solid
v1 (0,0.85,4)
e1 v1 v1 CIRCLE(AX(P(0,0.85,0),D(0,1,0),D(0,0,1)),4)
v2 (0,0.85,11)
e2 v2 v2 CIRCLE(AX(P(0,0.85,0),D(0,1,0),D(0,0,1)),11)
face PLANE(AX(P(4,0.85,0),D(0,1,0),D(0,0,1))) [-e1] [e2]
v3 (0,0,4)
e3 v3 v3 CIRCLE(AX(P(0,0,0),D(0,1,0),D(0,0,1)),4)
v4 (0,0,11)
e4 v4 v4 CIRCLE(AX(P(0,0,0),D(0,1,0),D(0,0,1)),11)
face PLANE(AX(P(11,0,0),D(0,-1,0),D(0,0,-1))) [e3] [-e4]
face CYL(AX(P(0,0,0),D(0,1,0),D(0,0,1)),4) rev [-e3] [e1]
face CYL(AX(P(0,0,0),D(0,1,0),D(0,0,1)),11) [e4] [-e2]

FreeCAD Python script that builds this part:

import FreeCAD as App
import Part
import Sketcher
from FreeCAD import Vector
Q = App.Units.Quantity

doc = App.newDocument("Part")
body = doc.addObject("PartDesign::Body", "Body")

# Sketch on XY plane
sketch1 = body.newObject("Sketcher::SketchObject", "Sketch")
sketch1.AttachmentSupport = (doc.getObject("XY_Plane"), [""])
sketch1.MapMode = "FlatFace"
sketch1.addGeometry(Part.LineSegment(Vector(11, 0.8, 0), Vector(11, 0, 0)), False)
sketch1.addGeometry(Part.LineSegment(Vector(11, 0, 0), Vector(4, 0, 0)), False)
sketch1.addGeometry(Part.LineSegment(Vector(4, 0, 0), Vector(4, 0.8, 0)), False)
sketch1.addGeometry(Part.LineSegment(Vector(4, 0.8, 0), Vector(11, 0.8, 0)), False)
sketch1.addConstraint(Sketcher.Constraint("Coincident", 0, 2, 1, 1))
sketch1.addConstraint(Sketcher.Constraint("Coincident", 1, 2, 2, 1))
sketch1.addConstraint(Sketcher.Constraint("Coincident", 2, 2, 3, 1))
sketch1.addConstraint(Sketcher.Constraint("Coincident", 3, 2, 0, 1))
sketch1.addConstraint(Sketcher.Constraint("Vertical", 0))
sketch1.addConstraint(Sketcher.Constraint("Horizontal", 1))
sketch1.addConstraint(Sketcher.Constraint("Vertical", 2))
sketch1.addConstraint(Sketcher.Constraint("Horizontal", 3))
sketch1.addConstraint(Sketcher.Constraint("PointOnObject", 0, 2, -1))
sketch1.addConstraint(Sketcher.Constraint("DistanceX", 1, 2, 1, 1, Q("7 mm")))
sketch1.addConstraint(Sketcher.Constraint("DistanceX", -1, 1, 0, 2, Q("11 mm")))
sketch1.addConstraint(Sketcher.Constraint("DistanceY", 0, 2, 0, 1, Q("0.85 mm")))
revolution = body.newObject("PartDesign::Revolution", "Revolution")
revolution.Profile = sketch1
revolution.ReferenceAxis = (sketch1, ["V_Axis"])
revolution.Angle = 360

doc.recompute()
